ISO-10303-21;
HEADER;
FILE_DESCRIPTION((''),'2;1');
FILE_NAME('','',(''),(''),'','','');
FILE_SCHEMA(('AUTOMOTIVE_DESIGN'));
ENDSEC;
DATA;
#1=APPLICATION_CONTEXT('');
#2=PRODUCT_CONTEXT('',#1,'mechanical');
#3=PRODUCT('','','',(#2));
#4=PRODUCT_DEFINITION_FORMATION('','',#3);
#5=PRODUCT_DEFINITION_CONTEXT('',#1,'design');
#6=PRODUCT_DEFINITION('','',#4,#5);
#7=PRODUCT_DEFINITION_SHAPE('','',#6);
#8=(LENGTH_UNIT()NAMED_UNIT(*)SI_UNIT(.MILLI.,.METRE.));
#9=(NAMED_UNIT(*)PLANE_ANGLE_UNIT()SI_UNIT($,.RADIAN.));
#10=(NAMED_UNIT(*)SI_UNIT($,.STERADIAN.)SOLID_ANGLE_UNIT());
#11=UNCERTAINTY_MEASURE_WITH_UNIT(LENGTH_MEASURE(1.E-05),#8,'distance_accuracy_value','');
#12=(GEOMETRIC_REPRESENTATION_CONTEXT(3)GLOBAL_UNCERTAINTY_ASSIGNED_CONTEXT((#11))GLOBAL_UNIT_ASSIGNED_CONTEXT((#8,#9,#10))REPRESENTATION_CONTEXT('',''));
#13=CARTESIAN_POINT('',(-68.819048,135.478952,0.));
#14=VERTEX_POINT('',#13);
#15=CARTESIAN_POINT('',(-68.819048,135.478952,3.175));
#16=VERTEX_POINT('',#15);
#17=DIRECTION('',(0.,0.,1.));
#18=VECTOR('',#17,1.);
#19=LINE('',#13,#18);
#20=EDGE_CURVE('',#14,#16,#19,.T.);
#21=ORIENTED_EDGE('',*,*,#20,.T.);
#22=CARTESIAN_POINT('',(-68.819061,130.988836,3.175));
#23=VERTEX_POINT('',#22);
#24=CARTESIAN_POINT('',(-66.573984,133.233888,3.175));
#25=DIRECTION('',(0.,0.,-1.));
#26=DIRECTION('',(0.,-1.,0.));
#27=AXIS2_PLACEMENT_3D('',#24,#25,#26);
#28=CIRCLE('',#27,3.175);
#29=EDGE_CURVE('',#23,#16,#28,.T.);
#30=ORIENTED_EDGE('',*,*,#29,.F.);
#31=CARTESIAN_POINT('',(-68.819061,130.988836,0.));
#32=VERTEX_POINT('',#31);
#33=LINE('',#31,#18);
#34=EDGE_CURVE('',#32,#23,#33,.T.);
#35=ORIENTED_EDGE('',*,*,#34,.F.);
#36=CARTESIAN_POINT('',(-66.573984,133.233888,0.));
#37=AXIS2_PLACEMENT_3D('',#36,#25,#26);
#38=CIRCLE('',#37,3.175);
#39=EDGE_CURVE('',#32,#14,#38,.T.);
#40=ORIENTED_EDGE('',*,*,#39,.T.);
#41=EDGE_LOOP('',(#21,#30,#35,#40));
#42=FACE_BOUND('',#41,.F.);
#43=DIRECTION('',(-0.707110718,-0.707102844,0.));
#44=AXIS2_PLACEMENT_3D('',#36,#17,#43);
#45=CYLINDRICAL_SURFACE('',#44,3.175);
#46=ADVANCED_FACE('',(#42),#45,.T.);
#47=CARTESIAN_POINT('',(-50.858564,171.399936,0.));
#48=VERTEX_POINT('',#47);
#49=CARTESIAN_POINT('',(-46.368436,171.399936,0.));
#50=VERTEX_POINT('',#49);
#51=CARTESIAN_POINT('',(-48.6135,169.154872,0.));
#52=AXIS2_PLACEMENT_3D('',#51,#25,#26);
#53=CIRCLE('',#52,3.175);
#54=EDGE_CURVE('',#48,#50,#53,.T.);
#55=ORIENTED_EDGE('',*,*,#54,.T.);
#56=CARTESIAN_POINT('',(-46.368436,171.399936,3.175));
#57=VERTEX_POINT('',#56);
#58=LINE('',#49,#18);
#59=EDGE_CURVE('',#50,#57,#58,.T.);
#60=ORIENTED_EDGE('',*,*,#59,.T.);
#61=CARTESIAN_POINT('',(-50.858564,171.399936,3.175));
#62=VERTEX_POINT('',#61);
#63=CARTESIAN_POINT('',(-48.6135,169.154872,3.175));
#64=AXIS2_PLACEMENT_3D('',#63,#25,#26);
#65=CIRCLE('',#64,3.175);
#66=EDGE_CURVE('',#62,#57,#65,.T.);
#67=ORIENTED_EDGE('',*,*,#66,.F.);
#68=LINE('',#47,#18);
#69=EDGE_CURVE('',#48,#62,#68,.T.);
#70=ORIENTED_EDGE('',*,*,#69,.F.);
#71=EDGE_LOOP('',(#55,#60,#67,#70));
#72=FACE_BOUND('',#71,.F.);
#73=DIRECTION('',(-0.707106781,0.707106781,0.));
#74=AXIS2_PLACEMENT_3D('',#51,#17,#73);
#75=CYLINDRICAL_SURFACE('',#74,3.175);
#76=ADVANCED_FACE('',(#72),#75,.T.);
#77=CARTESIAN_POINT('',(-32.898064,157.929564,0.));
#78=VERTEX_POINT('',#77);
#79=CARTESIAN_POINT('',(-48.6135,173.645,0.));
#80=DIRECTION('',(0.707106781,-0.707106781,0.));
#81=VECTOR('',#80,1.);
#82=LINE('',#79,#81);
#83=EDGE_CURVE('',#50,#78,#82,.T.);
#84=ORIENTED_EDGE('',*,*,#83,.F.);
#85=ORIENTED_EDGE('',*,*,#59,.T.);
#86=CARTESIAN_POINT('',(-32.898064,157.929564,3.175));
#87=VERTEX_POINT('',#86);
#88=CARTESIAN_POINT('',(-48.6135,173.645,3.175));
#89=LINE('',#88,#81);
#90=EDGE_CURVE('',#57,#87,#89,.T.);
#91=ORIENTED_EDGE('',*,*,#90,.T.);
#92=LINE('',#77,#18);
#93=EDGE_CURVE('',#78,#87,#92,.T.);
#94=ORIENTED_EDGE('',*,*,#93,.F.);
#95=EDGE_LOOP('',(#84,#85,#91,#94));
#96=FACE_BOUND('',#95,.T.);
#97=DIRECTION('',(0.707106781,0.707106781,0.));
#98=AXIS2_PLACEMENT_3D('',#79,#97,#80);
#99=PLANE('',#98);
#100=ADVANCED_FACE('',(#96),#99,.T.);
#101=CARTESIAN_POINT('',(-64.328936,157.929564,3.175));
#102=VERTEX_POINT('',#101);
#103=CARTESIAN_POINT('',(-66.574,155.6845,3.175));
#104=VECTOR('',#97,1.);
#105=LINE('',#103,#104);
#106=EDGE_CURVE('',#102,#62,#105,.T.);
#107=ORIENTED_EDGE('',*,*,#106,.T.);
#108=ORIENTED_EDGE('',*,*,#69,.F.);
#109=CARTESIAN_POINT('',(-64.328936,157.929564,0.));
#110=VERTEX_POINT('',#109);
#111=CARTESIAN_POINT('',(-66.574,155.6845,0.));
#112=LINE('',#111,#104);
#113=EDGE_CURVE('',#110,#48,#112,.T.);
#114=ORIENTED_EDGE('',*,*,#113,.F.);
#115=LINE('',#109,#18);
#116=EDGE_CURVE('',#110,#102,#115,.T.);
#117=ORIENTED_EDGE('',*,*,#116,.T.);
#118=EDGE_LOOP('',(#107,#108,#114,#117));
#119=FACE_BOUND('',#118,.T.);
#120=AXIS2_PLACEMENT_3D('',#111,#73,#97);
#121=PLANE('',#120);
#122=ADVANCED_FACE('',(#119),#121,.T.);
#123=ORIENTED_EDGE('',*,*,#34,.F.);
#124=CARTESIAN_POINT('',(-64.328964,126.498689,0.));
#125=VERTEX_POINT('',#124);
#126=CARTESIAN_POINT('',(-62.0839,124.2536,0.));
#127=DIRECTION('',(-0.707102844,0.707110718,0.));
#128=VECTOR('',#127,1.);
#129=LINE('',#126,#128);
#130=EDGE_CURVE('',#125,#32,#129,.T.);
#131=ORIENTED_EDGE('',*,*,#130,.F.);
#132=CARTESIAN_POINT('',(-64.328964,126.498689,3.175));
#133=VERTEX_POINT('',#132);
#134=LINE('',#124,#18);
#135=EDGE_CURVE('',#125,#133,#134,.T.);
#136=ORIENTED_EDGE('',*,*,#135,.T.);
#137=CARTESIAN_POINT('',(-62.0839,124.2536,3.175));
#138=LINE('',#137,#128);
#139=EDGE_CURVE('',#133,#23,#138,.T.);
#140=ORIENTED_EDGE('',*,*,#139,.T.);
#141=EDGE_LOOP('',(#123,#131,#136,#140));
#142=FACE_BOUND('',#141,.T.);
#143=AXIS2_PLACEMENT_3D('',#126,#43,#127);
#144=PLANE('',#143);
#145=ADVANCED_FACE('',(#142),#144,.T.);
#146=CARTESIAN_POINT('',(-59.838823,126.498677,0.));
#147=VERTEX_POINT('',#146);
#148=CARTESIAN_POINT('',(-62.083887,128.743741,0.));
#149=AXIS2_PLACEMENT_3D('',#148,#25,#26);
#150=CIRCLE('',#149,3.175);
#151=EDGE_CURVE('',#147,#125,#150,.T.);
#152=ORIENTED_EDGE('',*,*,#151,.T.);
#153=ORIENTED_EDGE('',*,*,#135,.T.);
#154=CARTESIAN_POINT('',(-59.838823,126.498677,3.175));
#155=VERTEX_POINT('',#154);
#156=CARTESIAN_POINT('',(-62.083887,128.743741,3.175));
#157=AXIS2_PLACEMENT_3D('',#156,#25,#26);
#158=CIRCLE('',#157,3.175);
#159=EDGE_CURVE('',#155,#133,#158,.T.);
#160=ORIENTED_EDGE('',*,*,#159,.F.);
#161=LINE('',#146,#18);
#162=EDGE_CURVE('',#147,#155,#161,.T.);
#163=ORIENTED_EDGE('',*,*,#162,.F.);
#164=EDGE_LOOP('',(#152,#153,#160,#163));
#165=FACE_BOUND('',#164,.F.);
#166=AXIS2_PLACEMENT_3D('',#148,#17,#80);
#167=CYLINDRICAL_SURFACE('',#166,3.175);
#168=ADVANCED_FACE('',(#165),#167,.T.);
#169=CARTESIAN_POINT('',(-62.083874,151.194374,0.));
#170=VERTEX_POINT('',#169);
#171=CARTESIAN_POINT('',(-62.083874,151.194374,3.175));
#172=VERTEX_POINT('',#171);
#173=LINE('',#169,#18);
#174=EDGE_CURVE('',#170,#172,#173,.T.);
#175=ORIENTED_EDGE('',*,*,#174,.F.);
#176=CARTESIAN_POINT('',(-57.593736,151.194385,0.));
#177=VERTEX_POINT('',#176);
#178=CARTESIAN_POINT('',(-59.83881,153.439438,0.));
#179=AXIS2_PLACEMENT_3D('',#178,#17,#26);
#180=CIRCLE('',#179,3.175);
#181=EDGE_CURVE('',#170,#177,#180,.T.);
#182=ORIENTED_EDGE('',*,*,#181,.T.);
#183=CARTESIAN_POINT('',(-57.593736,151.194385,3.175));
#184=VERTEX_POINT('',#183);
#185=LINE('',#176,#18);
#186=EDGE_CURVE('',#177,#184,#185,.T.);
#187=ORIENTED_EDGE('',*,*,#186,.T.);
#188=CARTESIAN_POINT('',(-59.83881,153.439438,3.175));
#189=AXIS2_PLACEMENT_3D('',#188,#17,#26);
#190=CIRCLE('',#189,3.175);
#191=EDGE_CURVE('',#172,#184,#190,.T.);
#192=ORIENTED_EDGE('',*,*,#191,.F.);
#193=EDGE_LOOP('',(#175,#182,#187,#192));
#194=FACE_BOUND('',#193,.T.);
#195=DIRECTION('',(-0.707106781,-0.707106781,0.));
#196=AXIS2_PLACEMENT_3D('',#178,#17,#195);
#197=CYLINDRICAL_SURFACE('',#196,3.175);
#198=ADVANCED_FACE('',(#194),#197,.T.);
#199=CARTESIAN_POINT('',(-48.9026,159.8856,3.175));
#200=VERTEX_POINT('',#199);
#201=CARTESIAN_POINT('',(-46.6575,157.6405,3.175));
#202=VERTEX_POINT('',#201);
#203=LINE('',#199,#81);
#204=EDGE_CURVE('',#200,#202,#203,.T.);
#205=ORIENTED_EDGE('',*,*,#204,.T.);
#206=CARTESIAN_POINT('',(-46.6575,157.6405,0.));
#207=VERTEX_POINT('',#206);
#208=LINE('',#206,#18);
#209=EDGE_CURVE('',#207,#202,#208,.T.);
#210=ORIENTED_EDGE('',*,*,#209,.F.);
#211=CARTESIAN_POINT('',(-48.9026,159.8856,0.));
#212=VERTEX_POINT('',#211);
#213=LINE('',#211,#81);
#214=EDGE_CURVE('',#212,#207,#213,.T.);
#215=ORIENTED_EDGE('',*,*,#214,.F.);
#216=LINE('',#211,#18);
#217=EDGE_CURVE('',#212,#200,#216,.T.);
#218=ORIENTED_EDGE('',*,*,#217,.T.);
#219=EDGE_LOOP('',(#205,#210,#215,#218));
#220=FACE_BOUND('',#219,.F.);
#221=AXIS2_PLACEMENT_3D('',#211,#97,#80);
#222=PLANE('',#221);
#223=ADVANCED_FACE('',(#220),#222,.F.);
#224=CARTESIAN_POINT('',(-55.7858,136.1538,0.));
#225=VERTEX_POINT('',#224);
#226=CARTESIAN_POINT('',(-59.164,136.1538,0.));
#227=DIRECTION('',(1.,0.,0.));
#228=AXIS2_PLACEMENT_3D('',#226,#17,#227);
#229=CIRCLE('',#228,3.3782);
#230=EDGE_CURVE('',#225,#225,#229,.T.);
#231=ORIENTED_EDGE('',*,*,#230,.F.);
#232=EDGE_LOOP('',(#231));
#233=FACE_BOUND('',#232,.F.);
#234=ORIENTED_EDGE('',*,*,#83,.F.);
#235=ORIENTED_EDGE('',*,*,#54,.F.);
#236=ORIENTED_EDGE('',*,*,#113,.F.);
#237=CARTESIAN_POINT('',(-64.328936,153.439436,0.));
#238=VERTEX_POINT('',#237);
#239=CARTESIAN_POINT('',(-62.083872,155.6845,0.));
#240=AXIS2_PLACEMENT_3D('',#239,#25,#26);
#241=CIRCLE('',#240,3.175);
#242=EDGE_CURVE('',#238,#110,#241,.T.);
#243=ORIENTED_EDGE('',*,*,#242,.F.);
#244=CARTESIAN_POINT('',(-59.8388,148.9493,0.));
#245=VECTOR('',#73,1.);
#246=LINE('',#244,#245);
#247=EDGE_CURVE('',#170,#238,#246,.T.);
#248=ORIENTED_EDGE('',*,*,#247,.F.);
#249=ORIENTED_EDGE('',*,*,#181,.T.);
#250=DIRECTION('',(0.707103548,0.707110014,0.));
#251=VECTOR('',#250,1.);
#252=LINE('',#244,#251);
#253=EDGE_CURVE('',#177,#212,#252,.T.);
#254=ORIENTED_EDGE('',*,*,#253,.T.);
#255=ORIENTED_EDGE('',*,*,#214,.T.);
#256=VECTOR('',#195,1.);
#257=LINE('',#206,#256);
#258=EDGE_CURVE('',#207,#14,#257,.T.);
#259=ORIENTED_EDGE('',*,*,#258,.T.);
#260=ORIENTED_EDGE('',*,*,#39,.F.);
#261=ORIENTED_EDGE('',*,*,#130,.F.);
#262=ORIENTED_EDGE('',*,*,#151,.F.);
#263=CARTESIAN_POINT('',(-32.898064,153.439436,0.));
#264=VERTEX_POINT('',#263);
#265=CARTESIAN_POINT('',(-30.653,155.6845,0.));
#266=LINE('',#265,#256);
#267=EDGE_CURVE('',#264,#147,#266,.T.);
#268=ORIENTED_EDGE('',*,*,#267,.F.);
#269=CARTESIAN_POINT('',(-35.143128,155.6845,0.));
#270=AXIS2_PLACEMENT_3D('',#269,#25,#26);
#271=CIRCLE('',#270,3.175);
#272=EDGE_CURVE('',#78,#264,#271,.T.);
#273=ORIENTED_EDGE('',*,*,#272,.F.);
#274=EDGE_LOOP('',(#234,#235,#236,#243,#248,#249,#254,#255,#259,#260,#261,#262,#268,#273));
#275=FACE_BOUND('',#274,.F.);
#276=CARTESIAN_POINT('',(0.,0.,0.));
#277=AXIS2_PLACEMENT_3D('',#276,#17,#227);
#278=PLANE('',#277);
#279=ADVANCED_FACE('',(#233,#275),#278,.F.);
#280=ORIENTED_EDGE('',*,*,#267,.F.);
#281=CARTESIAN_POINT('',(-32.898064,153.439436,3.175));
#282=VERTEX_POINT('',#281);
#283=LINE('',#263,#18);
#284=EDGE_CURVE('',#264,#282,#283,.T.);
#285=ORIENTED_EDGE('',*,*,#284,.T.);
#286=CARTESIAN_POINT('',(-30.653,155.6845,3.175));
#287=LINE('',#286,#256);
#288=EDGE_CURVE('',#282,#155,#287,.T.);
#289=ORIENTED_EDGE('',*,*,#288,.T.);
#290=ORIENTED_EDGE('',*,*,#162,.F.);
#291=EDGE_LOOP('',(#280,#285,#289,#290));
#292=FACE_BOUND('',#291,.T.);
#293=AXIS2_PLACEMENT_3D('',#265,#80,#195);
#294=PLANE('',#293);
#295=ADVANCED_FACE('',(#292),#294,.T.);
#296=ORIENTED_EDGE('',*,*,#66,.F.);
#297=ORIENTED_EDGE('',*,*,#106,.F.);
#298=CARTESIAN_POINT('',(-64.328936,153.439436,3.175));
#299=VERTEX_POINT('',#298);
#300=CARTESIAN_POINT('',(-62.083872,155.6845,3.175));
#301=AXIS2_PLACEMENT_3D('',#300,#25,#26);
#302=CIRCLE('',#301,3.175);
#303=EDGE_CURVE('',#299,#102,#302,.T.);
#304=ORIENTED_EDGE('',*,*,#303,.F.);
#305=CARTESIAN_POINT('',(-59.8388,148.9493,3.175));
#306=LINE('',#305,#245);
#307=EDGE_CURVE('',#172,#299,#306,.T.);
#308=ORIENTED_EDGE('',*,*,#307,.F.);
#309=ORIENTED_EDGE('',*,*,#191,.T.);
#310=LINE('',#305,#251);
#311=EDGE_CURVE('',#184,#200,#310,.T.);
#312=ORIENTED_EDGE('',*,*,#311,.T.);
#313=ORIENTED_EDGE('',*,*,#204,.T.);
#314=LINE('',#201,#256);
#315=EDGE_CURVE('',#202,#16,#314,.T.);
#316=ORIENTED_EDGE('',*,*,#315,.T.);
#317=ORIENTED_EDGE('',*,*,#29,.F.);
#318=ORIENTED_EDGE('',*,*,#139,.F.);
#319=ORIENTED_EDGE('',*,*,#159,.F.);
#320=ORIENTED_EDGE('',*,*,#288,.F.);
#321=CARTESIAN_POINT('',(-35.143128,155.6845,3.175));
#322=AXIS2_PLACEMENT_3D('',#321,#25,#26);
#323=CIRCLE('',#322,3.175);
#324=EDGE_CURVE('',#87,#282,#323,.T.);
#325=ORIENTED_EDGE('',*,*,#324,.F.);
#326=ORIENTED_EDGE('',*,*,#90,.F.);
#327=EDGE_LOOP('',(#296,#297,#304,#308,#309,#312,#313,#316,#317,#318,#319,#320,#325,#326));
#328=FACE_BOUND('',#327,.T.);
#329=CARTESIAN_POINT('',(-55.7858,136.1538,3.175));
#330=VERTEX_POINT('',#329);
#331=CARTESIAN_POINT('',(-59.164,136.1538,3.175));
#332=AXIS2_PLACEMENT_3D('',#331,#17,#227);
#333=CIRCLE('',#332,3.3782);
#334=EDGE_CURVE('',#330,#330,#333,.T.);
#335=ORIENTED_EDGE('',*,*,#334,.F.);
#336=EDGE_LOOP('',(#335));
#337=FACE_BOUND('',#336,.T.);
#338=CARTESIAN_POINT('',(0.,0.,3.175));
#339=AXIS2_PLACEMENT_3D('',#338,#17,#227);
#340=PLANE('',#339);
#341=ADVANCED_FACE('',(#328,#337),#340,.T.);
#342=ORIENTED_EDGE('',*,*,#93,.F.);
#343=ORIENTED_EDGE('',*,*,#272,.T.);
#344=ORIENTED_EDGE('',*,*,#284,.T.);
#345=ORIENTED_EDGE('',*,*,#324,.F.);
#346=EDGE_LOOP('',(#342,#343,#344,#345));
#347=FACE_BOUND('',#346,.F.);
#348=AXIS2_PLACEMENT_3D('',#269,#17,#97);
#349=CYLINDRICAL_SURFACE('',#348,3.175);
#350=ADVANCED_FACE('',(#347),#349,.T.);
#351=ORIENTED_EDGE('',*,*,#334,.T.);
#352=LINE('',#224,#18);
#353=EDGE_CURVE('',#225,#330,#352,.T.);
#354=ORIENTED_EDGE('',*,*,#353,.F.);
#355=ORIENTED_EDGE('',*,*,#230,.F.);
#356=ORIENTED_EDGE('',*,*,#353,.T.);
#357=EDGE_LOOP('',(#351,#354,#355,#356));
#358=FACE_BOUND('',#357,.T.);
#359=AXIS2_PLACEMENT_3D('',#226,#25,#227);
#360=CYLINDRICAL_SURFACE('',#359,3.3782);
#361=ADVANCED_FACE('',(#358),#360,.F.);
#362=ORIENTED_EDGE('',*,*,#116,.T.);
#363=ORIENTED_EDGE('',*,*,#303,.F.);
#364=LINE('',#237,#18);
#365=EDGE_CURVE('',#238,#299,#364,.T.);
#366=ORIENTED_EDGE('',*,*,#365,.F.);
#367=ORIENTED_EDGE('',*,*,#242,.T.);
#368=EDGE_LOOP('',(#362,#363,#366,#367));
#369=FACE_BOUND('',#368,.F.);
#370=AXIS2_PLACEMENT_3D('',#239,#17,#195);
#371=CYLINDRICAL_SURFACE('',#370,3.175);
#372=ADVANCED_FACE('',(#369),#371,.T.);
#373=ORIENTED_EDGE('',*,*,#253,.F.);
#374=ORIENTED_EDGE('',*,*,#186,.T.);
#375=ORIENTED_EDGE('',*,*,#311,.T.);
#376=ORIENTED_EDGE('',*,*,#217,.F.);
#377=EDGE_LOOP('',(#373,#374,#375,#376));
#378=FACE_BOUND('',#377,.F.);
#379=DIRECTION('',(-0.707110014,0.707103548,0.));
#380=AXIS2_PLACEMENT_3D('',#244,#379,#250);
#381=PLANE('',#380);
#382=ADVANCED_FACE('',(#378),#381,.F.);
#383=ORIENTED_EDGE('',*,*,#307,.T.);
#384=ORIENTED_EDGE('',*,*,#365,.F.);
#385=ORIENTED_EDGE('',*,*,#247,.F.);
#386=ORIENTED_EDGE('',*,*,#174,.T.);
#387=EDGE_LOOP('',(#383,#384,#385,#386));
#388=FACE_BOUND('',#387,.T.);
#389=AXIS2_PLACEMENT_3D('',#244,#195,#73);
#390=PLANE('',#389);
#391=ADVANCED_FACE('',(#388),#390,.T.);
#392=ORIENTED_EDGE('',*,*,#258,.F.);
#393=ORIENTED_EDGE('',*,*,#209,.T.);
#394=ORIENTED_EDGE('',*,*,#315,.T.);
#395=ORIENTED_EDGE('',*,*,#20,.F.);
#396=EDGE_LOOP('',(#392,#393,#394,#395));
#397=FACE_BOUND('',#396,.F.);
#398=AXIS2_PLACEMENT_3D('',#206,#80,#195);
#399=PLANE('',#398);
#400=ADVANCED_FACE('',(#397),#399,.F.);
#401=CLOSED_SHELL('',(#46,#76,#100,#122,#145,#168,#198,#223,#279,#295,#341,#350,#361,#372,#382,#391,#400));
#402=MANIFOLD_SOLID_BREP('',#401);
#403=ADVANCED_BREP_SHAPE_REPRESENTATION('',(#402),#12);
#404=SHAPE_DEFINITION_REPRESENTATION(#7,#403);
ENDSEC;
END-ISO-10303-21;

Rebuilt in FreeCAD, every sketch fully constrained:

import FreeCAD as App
import Part
import Sketcher
from FreeCAD import Vector
Q = App.Units.Quantity


def edges_at(feature, points):
    """Names of the edges that pass closest to the given points."""
    edges = feature.Shape.Edges
    near = lambda p: min(range(len(edges)), key=lambda i: edges[i].distToShape(Part.Vertex(*p))[0])
    return sorted({f"Edge{near(p) + 1}" for p in points})


def add_polygon(sketch, points):
    """Adds a closed chain of lines whose ends are joined by coincident constraints."""
    first, n = sketch.GeometryCount, len(points)
    for a, b in zip(points, points[1:] + points[:1]):
        sketch.addGeometry(Part.LineSegment(App.Vector(*a, 0), App.Vector(*b, 0)), False)
    for i in range(n):
        sketch.addConstraint(Sketcher.Constraint("Coincident", first + i, 2, first + (i + 1) % n, 1))

doc = App.newDocument("Part")
params = doc.addObject("Spreadsheet::Sheet", "Params")
for row, (alias, value) in enumerate([
    ("sketch1_length", "1 in"),
    ("sketch1_length2", "0.5 in"),
    ("sketch1_length3", "1.75 in"),
    ("sketch1_diameter", "0.266 in"),
    ("sketch1_length4", "0.375 in"),
    ("pad1_length", "0.125 in"),
    ("fillet_radius", "0.125 in"),
], start=1):
    params.set(f"A{row}", alias)
    params.set(f"B{row}", "=" + value)
    params.setAlias(f"B{row}", alias)

body = doc.addObject("PartDesign::Body", "Body")

sketch1 = body.newObject("Sketcher::SketchObject", "Sketch")
sketch1.AttachmentSupport = (doc.getObject("XY_Plane"), [""])
sketch1.MapMode = "FlatFace"
add_polygon(sketch1, [(-66.6, 155.7), (-59.8, 148.9), (-48.9, 159.9), (-46.7, 157.6), (-71.1, 133.2), (-62.1, 124.3), (-30.7, 155.7), (-48.6, 173.6)])
sketch1.addGeometry(Part.Circle(Vector(-59.2, 136.2, 0), Vector(0, 0, 1), 3.4), False)
sketch1.addConstraint([
    Sketcher.Constraint("Perpendicular", 0, 1),
    Sketcher.Constraint("Perpendicular", 1, 2),
    Sketcher.Constraint("Perpendicular", 2, 3),
    Sketcher.Constraint("Perpendicular", 3, 4),
    Sketcher.Constraint("Perpendicular", 4, 5),
    Sketcher.Constraint("Perpendicular", 5, 6),
    Sketcher.Constraint("Perpendicular", 6, 7),
    Sketcher.Constraint("Horizontal", 5, 2, 7, 2),
    Sketcher.Constraint("Equal", 6, 7),
    Sketcher.Constraint("Distance", 6, Q("1 in")),
    Sketcher.Constraint("Distance", 4, Q("0.5 in")),
    Sketcher.Constraint("Distance", 5, Q("1.75 in")),
    Sketcher.Constraint("Diameter", 8, Q("0.266 in")),
    Sketcher.Constraint("Distance", 0, Q("0.375 in")),
    Sketcher.Constraint("DistanceX", 8, 3, 1, 2, Q("0.404 in")),
    Sketcher.Constraint("DistanceY", 5, 2, 2, 2, Q("0.077 in")),
    Sketcher.Constraint("DistanceX", 8, 3, -1, 1, Q("2.3293 in")),
    Sketcher.Constraint("DistanceY", -1, 1, 1, 2, Q("6.2947 in")),
    Sketcher.Constraint("DistanceY", 4, 2, 8, 3, Q("0.4685 in")),
])
sketch1.setExpression("Constraints[17]", "Params.sketch1_length")
sketch1.setExpression("Constraints[18]", "Params.sketch1_length2")
sketch1.setExpression("Constraints[19]", "Params.sketch1_length3")
sketch1.setExpression("Constraints[20]", "Params.sketch1_diameter")
sketch1.setExpression("Constraints[21]", "Params.sketch1_length4")
pad1 = body.newObject("PartDesign::Pad", "Pad")
pad1.Profile = sketch1
pad1.setExpression("Length", "Params.pad1_length")
doc.recompute()

fillet = body.newObject("PartDesign::Fillet", "Fillet")
fillet.Base = (pad1, edges_at(pad1, [
    (-62.084, 124.254, 1.587),
    (-59.839, 148.949, 1.587),
    (-66.574, 155.685, 1.587),
    (-71.064, 133.234, 1.587),
    (-48.614, 173.645, 1.587),
    (-30.653, 155.685, 1.587),
]))
fillet.setExpression("Radius", "Params.fillet_radius")

doc.recompute()
